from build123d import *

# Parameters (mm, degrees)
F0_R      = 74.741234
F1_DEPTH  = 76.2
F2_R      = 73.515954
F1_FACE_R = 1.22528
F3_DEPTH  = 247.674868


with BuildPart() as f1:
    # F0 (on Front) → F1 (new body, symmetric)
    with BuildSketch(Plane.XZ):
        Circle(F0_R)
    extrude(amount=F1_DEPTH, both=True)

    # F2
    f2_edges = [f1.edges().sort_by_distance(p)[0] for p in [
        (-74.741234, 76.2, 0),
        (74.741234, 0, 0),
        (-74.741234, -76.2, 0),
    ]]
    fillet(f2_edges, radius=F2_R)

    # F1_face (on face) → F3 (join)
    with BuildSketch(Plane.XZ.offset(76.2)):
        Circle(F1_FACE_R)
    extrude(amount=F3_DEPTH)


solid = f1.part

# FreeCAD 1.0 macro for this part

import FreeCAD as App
import Part
import Sketcher
from FreeCAD import Vector
Q = App.Units.Quantity

doc = App.newDocument("Part")
body = doc.addObject("PartDesign::Body", "Body")

# Sketch on XZ plane
sketch1 = body.newObject("Sketcher::SketchObject", "Sketch")
sketch1.AttachmentSupport = (doc.getObject("XZ_Plane"), [""])
sketch1.MapMode = "FlatFace"
sketch1.addGeometry(Part.Circle(Vector(0, 0, 0), Vector(0, 0, 1), 74.741234), False)
sketch1.addConstraint([
    Sketcher.Constraint("Coincident", 0, 3, -1, 1),
    Sketcher.Constraint("Diameter", 0, Q("149.482468 mm")),
])
pad1 = body.newObject("PartDesign::Pad", "Pad")
pad1.Profile = sketch1
pad1.Length = Q("6 in")
pad1.Midplane = True
doc.recompute()

fillet = body.newObject("PartDesign::Fillet", "Fillet")
fillet.Base = (pad1, ["Edge1"])
fillet.UseAllEdges = True
fillet.Radius = 73.515954

# Sketch on XZ plane
sketch2 = body.newObject("Sketcher::SketchObject", "Sketch001")
sketch2.AttachmentSupport = (doc.getObject("XZ_Plane"), [""])
sketch2.MapMode = "FlatFace"
sketch2.AttachmentOffset = App.Placement(Vector(0, 0, 3 * 25.4), App.Rotation())
sketch2.addGeometry(Part.Circle(Vector(0, 0, 0), Vector(0, 0, 1), 1.22528), False)
sketch2.addConstraint([
    Sketcher.Constraint("Coincident", 0, 3, -1, 1),
    Sketcher.Constraint("Diameter", 0, Q("2.45056 mm")),
])
pad2 = body.newObject("PartDesign::Pad", "Pad001")
pad2.Profile = sketch2
pad2.Length = 247.674868

doc.recompute()
